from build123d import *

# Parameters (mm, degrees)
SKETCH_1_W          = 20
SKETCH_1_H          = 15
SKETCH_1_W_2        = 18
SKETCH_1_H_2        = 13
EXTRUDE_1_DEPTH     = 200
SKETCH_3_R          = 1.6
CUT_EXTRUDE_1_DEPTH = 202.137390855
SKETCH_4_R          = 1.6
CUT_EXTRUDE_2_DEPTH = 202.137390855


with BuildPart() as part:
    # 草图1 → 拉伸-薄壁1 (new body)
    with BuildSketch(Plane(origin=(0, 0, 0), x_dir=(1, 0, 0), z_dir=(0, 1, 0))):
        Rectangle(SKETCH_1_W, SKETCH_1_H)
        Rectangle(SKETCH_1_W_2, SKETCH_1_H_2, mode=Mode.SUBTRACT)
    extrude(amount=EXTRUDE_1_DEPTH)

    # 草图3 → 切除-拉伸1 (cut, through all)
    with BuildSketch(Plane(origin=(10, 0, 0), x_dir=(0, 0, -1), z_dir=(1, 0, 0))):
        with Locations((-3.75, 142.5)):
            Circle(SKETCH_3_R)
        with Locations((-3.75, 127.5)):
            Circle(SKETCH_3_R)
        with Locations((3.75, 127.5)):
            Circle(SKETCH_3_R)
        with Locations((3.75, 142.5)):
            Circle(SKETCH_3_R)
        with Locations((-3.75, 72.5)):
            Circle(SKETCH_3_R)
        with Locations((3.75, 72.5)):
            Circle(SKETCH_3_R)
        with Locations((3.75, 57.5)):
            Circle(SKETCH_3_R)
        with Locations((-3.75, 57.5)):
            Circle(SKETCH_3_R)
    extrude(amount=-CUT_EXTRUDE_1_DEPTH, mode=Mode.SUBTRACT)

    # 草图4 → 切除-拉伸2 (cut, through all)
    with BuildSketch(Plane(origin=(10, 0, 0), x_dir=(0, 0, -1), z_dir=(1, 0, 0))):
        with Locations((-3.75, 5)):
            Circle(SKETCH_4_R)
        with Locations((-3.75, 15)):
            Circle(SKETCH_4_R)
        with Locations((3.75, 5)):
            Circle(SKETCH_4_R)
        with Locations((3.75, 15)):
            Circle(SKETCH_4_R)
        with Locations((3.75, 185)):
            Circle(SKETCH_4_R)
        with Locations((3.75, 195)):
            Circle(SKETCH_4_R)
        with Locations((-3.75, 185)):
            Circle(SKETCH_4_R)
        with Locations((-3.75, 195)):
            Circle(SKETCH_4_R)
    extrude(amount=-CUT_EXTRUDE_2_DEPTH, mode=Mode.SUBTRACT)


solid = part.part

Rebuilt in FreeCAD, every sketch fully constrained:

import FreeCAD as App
import Part
import Sketcher


def add_polygon(sketch, points):
    """Adds a closed chain of lines whose ends are joined by coincident constraints."""
    first, n = sketch.GeometryCount, len(points)
    for a, b in zip(points, points[1:] + points[:1]):
        sketch.addGeometry(Part.LineSegment(App.Vector(*a, 0), App.Vector(*b, 0)), False)
    for i in range(n):
        sketch.addConstraint(Sketcher.Constraint("Coincident", first + i, 2, first + (i + 1) % n, 1))

doc = App.newDocument("Part")
body = doc.addObject("PartDesign::Body", "Body")

# Sketch on XZ plane
sketch1 = body.newObject("Sketcher::SketchObject", "Sketch")
sketch1.AttachmentSupport = (doc.getObject("XZ_Plane"), [""])
sketch1.MapMode = "FlatFace"
add_polygon(sketch1, [(-10, -8), (-10, 8), (10, 8), (10, -8)])  # lines 0-3
add_polygon(sketch1, [(9, 6), (-9, 6), (-9, -6), (9, -6)])  # lines 4-7
sketch1.addConstraint([
    Sketcher.Constraint("Vertical", 0),
    Sketcher.Constraint("Horizontal", 1),
    Sketcher.Constraint("Vertical", 2),
    Sketcher.Constraint("Horizontal", 3),
    Sketcher.Constraint("Horizontal", 4),
    Sketcher.Constraint("Vertical", 5),
    Sketcher.Constraint("Horizontal", 6),
    Sketcher.Constraint("Vertical", 7),
    Sketcher.Constraint("Symmetric", 0, 2, 2, 2, -1, 1),
    Sketcher.Constraint("Symmetric", 4, 2, 6, 2, -1, 1),
    Sketcher.Constraint("DistanceX", 1, 1, 1, 2, 20.0),
    Sketcher.Constraint("DistanceX", 4, 2, 4, 1, 18.0),
    Sketcher.Constraint("DistanceY", 0, 1, 0, 2, 15.0),
    Sketcher.Constraint("DistanceY", 5, 2, 5, 1, 13.0),
])
pad1 = body.newObject("PartDesign::Pad", "Pad")
pad1.Profile = sketch1
pad1.Length = 200
pad1.Reversed = True

# Sketch on YZ plane
sketch2 = body.newObject("Sketcher::SketchObject", "Sketch001")
sketch2.AttachmentSupport = (doc.getObject("YZ_Plane"), [""])
sketch2.MapMode = "FlatFace"
sketch2.AttachmentOffset = App.Placement(App.Vector(0, 0, 10), App.Rotation())
sketch2.addGeometry([
    Part.Circle(App.Vector(142.5, 3.8, 0), App.Vector(0, 0, 1), 1.6),  # 0
    Part.Circle(App.Vector(127.5, 3.8, 0), App.Vector(0, 0, 1), 1.6),  # 1
    Part.Circle(App.Vector(127.5, -3.8, 0), App.Vector(0, 0, 1), 1.6),  # 2
    Part.Circle(App.Vector(142.5, -3.8, 0), App.Vector(0, 0, 1), 1.6),  # 3
    Part.Circle(App.Vector(72.5, 3.8, 0), App.Vector(0, 0, 1), 1.6),  # 4
    Part.Circle(App.Vector(72.5, -3.8, 0), App.Vector(0, 0, 1), 1.6),  # 5
    Part.Circle(App.Vector(57.5, -3.8, 0), App.Vector(0, 0, 1), 1.6),  # 6
    Part.Circle(App.Vector(57.5, 3.8, 0), App.Vector(0, 0, 1), 1.6),  # 7
], False)
sketch2.addConstraint([
    Sketcher.Constraint("Equal", 0, 1),
    Sketcher.Constraint("Equal", 1, 2),
    Sketcher.Constraint("Equal", 2, 3),
    Sketcher.Constraint("Equal", 3, 4),
    Sketcher.Constraint("Equal", 4, 5),
    Sketcher.Constraint("Equal", 5, 6),
    Sketcher.Constraint("Equal", 6, 7),
    Sketcher.Constraint("Symmetric", 1, 3, 2, 3, -1),
    Sketcher.Constraint("Symmetric", 0, 3, 3, 3, -1),
    Sketcher.Constraint("Symmetric", 4, 3, 5, 3, -1),
    Sketcher.Constraint("Symmetric", 6, 3, 7, 3, -1),
    Sketcher.Constraint("Horizontal", 0, 3, 1, 3),
    Sketcher.Constraint("Horizontal", 1, 3, 4, 3),
    Sketcher.Constraint("Horizontal", 5, 3, 6, 3),
    Sketcher.Constraint("Diameter", 0, 3.2),
    Sketcher.Constraint("DistanceX", 1, 3, 0, 3, 15.0),
    Sketcher.Constraint("DistanceX", 4, 3, 1, 3, 55.0),
    Sketcher.Constraint("DistanceX", 6, 3, 5, 3, 15.0),
    Sketcher.Constraint("DistanceX", -1, 1, 0, 3, 142.5),
    Sketcher.Constraint("DistanceY", 2, 3, 1, 3, 7.5),
])
pocket1 = body.newObject("PartDesign::Pocket", "Pocket")
pocket1.Profile = sketch2
pocket1.Type = "ThroughAll"

# Sketch on YZ plane
sketch3 = body.newObject("Sketcher::SketchObject", "Sketch002")
sketch3.AttachmentSupport = (doc.getObject("YZ_Plane"), [""])
sketch3.MapMode = "FlatFace"
sketch3.AttachmentOffset = App.Placement(App.Vector(0, 0, 10), App.Rotation())
sketch3.addGeometry([
    Part.Circle(App.Vector(5, 3.8, 0), App.Vector(0, 0, 1), 1.6),  # 0
    Part.Circle(App.Vector(15, 3.8, 0), App.Vector(0, 0, 1), 1.6),  # 1
    Part.Circle(App.Vector(5, -3.8, 0), App.Vector(0, 0, 1), 1.6),  # 2
    Part.Circle(App.Vector(15, -3.8, 0), App.Vector(0, 0, 1), 1.6),  # 3
    Part.Circle(App.Vector(185, -3.8, 0), App.Vector(0, 0, 1), 1.6),  # 4
    Part.Circle(App.Vector(195, -3.8, 0), App.Vector(0, 0, 1), 1.6),  # 5
    Part.Circle(App.Vector(185, 3.8, 0), App.Vector(0, 0, 1), 1.6),  # 6
    Part.Circle(App.Vector(195, 3.8, 0), App.Vector(0, 0, 1), 1.6),  # 7
], False)
sketch3.addConstraint([
    Sketcher.Constraint("Equal", 0, 1),
    Sketcher.Constraint("Equal", 1, 2),
    Sketcher.Constraint("Equal", 2, 3),
    Sketcher.Constraint("Equal", 3, 4),
    Sketcher.Constraint("Equal", 4, 5),
    Sketcher.Constraint("Equal", 5, 6),
    Sketcher.Constraint("Equal", 6, 7),
    Sketcher.Constraint("Symmetric", 0, 3, 2, 3, -1),
    Sketcher.Constraint("Symmetric", 1, 3, 3, 3, -1),
    Sketcher.Constraint("Symmetric", 4, 3, 6, 3, -1),
    Sketcher.Constraint("Symmetric", 5, 3, 7, 3, -1),
    Sketcher.Constraint("Horizontal", 0, 3, 1, 3),
    Sketcher.Constraint("Horizontal", 3, 3, 4, 3),
    Sketcher.Constraint("Horizontal", 4, 3, 5, 3),
    Sketcher.Constraint("Diameter", 0, 3.2),
    Sketcher.Constraint("DistanceX", -1, 1, 0, 3, 5.0),
    Sketcher.Constraint("DistanceX", -1, 1, 1, 3, 15.0),
    Sketcher.Constraint("DistanceX", -1, 1, 4, 3, 185.0),
    Sketcher.Constraint("DistanceX", -1, 1, 5, 3, 195.0),
    Sketcher.Constraint("DistanceY", 2, 3, 0, 3, 7.5),
])
pocket2 = body.newObject("PartDesign::Pocket", "Pocket001")
pocket2.Profile = sketch3
pocket2.Type = "ThroughAll"

doc.recompute()
